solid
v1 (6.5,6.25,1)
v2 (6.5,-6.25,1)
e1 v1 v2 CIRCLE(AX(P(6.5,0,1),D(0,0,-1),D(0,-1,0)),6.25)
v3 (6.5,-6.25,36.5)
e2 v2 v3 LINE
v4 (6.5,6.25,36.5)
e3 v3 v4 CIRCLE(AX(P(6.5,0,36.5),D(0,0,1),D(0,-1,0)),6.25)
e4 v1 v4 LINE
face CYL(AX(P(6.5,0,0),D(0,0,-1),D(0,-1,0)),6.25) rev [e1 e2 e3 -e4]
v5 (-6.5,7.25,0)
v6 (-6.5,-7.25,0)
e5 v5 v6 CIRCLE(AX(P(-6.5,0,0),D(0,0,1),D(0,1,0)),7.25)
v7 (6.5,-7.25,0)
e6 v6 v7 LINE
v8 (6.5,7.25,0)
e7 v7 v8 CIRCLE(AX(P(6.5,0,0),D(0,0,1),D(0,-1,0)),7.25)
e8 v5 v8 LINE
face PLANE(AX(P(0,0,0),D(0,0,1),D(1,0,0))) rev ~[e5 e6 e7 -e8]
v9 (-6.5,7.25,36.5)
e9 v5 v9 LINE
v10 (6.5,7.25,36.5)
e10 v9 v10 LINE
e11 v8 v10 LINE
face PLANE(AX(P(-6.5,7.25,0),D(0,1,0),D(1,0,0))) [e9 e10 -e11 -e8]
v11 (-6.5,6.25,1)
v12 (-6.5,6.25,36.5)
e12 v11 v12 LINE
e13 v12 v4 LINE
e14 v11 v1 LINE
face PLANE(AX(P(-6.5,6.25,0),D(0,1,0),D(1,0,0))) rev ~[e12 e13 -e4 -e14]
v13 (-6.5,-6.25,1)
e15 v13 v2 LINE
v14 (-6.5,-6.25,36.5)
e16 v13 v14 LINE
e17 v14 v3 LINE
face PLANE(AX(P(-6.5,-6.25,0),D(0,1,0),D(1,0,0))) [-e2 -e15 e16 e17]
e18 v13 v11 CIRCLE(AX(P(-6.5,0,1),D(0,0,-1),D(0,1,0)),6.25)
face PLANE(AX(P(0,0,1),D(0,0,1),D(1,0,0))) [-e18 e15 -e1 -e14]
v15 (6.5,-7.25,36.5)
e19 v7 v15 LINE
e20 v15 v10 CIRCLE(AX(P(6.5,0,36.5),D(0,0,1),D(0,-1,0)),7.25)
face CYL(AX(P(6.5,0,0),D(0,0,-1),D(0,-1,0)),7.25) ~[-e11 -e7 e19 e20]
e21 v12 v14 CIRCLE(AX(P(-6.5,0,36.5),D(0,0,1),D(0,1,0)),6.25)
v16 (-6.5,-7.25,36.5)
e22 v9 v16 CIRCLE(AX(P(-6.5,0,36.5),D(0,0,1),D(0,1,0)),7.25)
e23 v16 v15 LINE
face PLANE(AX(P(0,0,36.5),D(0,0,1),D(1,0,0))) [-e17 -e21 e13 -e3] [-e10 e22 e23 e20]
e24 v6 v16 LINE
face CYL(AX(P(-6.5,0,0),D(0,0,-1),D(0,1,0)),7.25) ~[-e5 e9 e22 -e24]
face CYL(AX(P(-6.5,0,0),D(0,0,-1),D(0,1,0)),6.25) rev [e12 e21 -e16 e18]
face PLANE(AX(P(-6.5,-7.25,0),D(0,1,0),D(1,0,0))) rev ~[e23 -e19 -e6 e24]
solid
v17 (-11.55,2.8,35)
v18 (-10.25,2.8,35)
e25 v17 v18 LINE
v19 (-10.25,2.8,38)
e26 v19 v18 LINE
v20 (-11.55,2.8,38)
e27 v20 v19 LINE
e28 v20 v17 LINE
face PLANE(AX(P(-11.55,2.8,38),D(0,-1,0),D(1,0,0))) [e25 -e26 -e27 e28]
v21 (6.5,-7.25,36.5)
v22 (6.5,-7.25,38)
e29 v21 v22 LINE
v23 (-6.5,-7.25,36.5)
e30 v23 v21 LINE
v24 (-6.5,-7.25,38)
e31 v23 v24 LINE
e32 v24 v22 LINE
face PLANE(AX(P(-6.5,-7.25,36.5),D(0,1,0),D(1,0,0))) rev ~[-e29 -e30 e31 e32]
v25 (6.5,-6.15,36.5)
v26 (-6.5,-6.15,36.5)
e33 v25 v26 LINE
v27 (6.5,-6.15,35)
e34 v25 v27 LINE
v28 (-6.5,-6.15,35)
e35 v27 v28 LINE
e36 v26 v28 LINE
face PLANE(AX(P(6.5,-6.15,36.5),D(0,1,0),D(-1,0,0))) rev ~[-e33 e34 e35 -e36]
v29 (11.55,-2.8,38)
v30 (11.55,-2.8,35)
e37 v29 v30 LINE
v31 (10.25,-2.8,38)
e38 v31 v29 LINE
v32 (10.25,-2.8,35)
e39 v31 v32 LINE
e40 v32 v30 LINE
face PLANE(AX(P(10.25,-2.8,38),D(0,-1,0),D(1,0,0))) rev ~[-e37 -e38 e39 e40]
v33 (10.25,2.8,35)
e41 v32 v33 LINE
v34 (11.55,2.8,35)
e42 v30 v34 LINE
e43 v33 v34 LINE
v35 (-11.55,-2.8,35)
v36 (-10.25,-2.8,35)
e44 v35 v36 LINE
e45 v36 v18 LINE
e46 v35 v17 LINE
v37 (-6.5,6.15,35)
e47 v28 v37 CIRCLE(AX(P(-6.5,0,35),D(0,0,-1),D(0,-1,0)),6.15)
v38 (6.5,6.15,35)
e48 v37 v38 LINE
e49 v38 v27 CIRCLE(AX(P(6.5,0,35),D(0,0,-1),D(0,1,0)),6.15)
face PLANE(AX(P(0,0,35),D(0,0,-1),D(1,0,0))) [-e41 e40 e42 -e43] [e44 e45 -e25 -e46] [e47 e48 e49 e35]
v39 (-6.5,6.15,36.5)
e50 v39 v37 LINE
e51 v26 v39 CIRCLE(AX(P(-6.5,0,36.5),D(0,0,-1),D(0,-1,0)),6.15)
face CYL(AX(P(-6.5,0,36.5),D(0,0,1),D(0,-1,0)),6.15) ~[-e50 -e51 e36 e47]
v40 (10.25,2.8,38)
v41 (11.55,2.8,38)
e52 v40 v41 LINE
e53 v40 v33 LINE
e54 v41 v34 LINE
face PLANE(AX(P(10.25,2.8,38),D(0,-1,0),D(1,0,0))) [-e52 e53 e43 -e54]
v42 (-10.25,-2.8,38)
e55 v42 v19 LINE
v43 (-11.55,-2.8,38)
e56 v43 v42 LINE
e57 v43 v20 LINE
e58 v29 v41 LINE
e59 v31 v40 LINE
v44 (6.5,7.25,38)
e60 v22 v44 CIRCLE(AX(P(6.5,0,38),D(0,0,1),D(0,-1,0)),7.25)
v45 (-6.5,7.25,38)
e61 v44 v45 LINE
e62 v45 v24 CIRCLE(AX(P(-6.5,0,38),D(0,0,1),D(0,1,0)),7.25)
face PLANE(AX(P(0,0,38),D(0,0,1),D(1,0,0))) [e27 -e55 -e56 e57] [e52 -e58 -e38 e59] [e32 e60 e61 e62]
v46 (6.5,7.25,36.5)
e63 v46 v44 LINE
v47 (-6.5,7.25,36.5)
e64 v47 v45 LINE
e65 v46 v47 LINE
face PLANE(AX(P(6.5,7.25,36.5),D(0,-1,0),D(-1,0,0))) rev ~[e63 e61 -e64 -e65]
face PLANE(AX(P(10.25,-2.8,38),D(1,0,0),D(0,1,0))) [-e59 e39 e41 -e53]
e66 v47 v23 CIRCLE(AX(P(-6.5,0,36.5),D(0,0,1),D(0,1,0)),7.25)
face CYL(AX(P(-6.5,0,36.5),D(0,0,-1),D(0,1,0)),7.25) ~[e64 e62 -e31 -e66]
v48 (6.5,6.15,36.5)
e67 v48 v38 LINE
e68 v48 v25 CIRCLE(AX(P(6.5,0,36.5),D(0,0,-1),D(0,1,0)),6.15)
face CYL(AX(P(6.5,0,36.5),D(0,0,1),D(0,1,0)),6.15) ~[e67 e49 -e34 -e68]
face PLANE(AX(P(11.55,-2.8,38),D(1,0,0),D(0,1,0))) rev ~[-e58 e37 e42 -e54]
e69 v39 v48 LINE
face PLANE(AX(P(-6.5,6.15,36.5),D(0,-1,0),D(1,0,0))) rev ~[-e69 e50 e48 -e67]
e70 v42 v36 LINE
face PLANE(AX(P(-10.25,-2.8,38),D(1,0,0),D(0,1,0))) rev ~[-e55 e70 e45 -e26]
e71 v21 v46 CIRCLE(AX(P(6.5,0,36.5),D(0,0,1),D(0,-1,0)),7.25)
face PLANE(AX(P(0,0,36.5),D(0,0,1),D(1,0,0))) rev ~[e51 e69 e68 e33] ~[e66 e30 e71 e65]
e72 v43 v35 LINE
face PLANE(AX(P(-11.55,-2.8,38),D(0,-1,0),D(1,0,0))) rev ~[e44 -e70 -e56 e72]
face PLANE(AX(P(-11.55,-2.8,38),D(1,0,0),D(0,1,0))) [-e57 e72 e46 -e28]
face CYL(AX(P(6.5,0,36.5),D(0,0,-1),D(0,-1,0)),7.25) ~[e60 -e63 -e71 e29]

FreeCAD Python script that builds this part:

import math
import FreeCAD as App
import Part
import Sketcher
from FreeCAD import Vector


def faces_at(feature, points):
    """Names of the faces that lie closest to the given points."""
    faces = feature.Shape.Faces
    near = lambda p: min(range(len(faces)), key=lambda i: faces[i].distToShape(Part.Vertex(*p))[0])
    return sorted({f"Face{near(p) + 1}" for p in points})


def add_polygon(sketch, points):
    """Adds a closed chain of lines whose ends are joined by coincident constraints."""
    first, n = sketch.GeometryCount, len(points)
    for a, b in zip(points, points[1:] + points[:1]):
        sketch.addGeometry(Part.LineSegment(App.Vector(*a, 0), App.Vector(*b, 0)), False)
    for i in range(n):
        sketch.addConstraint(Sketcher.Constraint("Coincident", first + i, 2, first + (i + 1) % n, 1))

doc = App.newDocument("Part")
body = doc.addObject("PartDesign::Body", "Body")

sketch1 = body.newObject("Sketcher::SketchObject", "Sketch")
sketch1.AttachmentSupport = (doc.getObject("XY_Plane"), [""])
sketch1.MapMode = "FlatFace"
sketch1.addGeometry([
    Part.LineSegment(Vector(-6.5, -7.25, 0), Vector(6.5, -7.25, 0)),
    Part.ArcOfCircle(Part.Circle(Vector(6.5, 0, 0), Vector(0, 0, 1), 7.25), math.radians(-90), math.radians(90)),
    Part.LineSegment(Vector(6.5, 7.25, 0), Vector(-6.5, 7.25, 0)),
    Part.ArcOfCircle(Part.Circle(Vector(-6.5, 0, 0), Vector(0, 0, 1), 7.25), math.radians(90), math.radians(270)),
], False)
sketch1.addConstraint([
    Sketcher.Constraint("Tangent", 0, 2, 1, 1),
    Sketcher.Constraint("Tangent", 1, 2, 2, 1),
    Sketcher.Constraint("Tangent", 2, 2, 3, 1),
    Sketcher.Constraint("Tangent", 3, 2, 0, 1),
    Sketcher.Constraint("Horizontal", 0),
    Sketcher.Constraint("Horizontal", 2),
    Sketcher.Constraint("Symmetric", 1, 3, 3, 3, -1, 1),
    Sketcher.Constraint("DistanceX", 0, 1, 0, 2, 13.0),
    Sketcher.Constraint("Radius", 1, 7.25),
])
pad1 = body.newObject("PartDesign::Pad", "Pad")
pad1.Profile = sketch1
pad1.Length = 36.5
doc.recompute()

thickness = body.newObject("PartDesign::Thickness", "Thickness")
thickness.Base = (pad1, faces_at(pad1, [(0, 0, 36.5)]))
thickness.Value = 1
thickness.Reversed = True
thickness.Join = "Arc"
body2 = doc.addObject("PartDesign::Body", "Body001")

sketch2 = body2.newObject("Sketcher::SketchObject", "Sketch001")
sketch2.AttachmentSupport = (doc.getObject("XY_Plane001"), [""])
sketch2.MapMode = "FlatFace"
sketch2.AttachmentOffset = App.Placement(Vector(0, 0, 36.5), App.Rotation())
sketch2.addGeometry([
    Part.LineSegment(Vector(-6.5, -7.25, 0), Vector(6.5, -7.25, 0)),
    Part.ArcOfCircle(Part.Circle(Vector(6.5, 0, 0), Vector(0, 0, 1), 7.25), math.radians(-90), math.radians(90)),
    Part.LineSegment(Vector(6.5, 7.25, 0), Vector(-6.5, 7.25, 0)),
    Part.ArcOfCircle(Part.Circle(Vector(-6.5, 0, 0), Vector(0, 0, 1), 7.25), math.radians(90), math.radians(270)),
], False)
sketch2.addConstraint([
    Sketcher.Constraint("Tangent", 0, 2, 1, 1),
    Sketcher.Constraint("Tangent", 1, 2, 2, 1),
    Sketcher.Constraint("Tangent", 2, 2, 3, 1),
    Sketcher.Constraint("Tangent", 3, 2, 0, 1),
    Sketcher.Constraint("Horizontal", 0),
    Sketcher.Constraint("Horizontal", 2),
    Sketcher.Constraint("Symmetric", 1, 3, 3, 3, -1, 1),
    Sketcher.Constraint("DistanceX", 0, 1, 0, 2, 13.0),
    Sketcher.Constraint("Radius", 1, 7.25),
])
pad2 = body2.newObject("PartDesign::Pad", "Pad001")
pad2.Profile = sketch2
pad2.Length = 1.5

sketch3 = body2.newObject("Sketcher::SketchObject", "Sketch002")
sketch3.AttachmentSupport = (doc.getObject("XY_Plane001"), [""])
sketch3.MapMode = "FlatFace"
sketch3.AttachmentOffset = App.Placement(Vector(0, 0, 36.5), App.Rotation())
sketch3.addGeometry([
    Part.ArcOfCircle(Part.Circle(Vector(-6.5, 0, 0), Vector(0, 0, 1), 6.15), math.radians(90), math.radians(270)),
    Part.LineSegment(Vector(-6.5, 6.15, 0), Vector(6.5, 6.15, 0)),
    Part.ArcOfCircle(Part.Circle(Vector(6.5, 0, 0), Vector(0, 0, 1), 6.15), math.radians(-90), math.radians(90)),
    Part.LineSegment(Vector(6.5, -6.15, 0), Vector(-6.5, -6.15, 0)),
], False)
sketch3.addConstraint([
    Sketcher.Constraint("Tangent", 0, 1, 1, 1),
    Sketcher.Constraint("Tangent", 1, 2, 2, 2),
    Sketcher.Constraint("Tangent", 2, 1, 3, 1),
    Sketcher.Constraint("Tangent", 3, 2, 0, 2),
    Sketcher.Constraint("Horizontal", 1),
    Sketcher.Constraint("Horizontal", 3),
    Sketcher.Constraint("Symmetric", 0, 3, 2, 3, -1, 1),
    Sketcher.Constraint("DistanceX", 1, 1, 1, 2, 13.0),
    Sketcher.Constraint("Radius", 0, 6.15),
])
pad3 = body2.newObject("PartDesign::Pad", "Pad002")
pad3.Profile = sketch3
pad3.Length = 1.5
pad3.Reversed = True

sketch4 = body2.newObject("Sketcher::SketchObject", "Sketch003")
sketch4.AttachmentSupport = (doc.getObject("XY_Plane001"), [""])
sketch4.MapMode = "FlatFace"
sketch4.AttachmentOffset = App.Placement(Vector(0, 0, 38), App.Rotation())
add_polygon(sketch4, [(-11.55, 2.8), (-11.55, -2.8), (-10.25, -2.8), (-10.25, 2.8)])
add_polygon(sketch4, [(10.25, 2.8), (10.25, -2.8), (11.55, -2.8), (11.55, 2.8)])
sketch4.addConstraint([
    Sketcher.Constraint("Vertical", 0),
    Sketcher.Constraint("Horizontal", 1),
    Sketcher.Constraint("Vertical", 2),
    Sketcher.Constraint("Horizontal", 3),
    Sketcher.Constraint("Vertical", 4),
    Sketcher.Constraint("Horizontal", 5),
    Sketcher.Constraint("Vertical", 6),
    Sketcher.Constraint("Horizontal", 7),
    Sketcher.Constraint("Symmetric", 2, 2, 4, 2, -1, 1),
    Sketcher.Constraint("Symmetric", 0, 2, 6, 2, -1, 1),
    Sketcher.Constraint("Horizontal", 1, 2, 4, 2),
    Sketcher.Constraint("DistanceX", 1, 1, 1, 2, 1.3),
    Sketcher.Constraint("DistanceY", 0, 2, 0, 1, 5.6),
    Sketcher.Constraint("DistanceX", 1, 2, 4, 2, 20.5),
])
pocket1 = body2.newObject("PartDesign::Pocket", "Pocket")
pocket1.Profile = sketch4
pocket1.Length = 3

doc.recompute()
